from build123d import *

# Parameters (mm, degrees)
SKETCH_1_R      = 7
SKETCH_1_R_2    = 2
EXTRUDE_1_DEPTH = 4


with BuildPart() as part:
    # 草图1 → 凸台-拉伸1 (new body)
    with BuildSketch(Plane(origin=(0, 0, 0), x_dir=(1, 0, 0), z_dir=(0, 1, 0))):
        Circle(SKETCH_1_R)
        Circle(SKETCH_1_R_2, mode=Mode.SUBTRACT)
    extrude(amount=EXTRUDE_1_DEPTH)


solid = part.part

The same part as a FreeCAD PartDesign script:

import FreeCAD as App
import Part
import Sketcher

V = App.Vector
Q = App.Units.Quantity

doc = App.newDocument("Part")
body = doc.addObject("PartDesign::Body", "Body")

sketch1 = doc.addObject("Sketcher::SketchObject", "Sketch")
body.addObject(sketch1)
sketch1.AttachmentSupport = (doc.XZ_Plane, [""])
sketch1.MapMode = "FlatFace"
sketch1.addGeometry(Part.Circle(V(0, 0, 0), V(0, 0, 1), 7), False)
sketch1.addGeometry(Part.Circle(V(0, 0, 0), V(0, 0, 1), 2), False)
sketch1.addConstraint(Sketcher.Constraint("Coincident", 0, 3, -1, 1))
sketch1.addConstraint(Sketcher.Constraint("Coincident", 1, 3, -1, 1))
sketch1.addConstraint(Sketcher.Constraint("Diameter", 0, Q("14 mm")))
sketch1.addConstraint(Sketcher.Constraint("Diameter", 1, Q("4 mm")))
pad1 = doc.addObject("PartDesign::Pad", "Pad")
body.addObject(pad1)
pad1.Profile = sketch1
pad1.Length = 4
pad1.Reversed = True

doc.recompute()
